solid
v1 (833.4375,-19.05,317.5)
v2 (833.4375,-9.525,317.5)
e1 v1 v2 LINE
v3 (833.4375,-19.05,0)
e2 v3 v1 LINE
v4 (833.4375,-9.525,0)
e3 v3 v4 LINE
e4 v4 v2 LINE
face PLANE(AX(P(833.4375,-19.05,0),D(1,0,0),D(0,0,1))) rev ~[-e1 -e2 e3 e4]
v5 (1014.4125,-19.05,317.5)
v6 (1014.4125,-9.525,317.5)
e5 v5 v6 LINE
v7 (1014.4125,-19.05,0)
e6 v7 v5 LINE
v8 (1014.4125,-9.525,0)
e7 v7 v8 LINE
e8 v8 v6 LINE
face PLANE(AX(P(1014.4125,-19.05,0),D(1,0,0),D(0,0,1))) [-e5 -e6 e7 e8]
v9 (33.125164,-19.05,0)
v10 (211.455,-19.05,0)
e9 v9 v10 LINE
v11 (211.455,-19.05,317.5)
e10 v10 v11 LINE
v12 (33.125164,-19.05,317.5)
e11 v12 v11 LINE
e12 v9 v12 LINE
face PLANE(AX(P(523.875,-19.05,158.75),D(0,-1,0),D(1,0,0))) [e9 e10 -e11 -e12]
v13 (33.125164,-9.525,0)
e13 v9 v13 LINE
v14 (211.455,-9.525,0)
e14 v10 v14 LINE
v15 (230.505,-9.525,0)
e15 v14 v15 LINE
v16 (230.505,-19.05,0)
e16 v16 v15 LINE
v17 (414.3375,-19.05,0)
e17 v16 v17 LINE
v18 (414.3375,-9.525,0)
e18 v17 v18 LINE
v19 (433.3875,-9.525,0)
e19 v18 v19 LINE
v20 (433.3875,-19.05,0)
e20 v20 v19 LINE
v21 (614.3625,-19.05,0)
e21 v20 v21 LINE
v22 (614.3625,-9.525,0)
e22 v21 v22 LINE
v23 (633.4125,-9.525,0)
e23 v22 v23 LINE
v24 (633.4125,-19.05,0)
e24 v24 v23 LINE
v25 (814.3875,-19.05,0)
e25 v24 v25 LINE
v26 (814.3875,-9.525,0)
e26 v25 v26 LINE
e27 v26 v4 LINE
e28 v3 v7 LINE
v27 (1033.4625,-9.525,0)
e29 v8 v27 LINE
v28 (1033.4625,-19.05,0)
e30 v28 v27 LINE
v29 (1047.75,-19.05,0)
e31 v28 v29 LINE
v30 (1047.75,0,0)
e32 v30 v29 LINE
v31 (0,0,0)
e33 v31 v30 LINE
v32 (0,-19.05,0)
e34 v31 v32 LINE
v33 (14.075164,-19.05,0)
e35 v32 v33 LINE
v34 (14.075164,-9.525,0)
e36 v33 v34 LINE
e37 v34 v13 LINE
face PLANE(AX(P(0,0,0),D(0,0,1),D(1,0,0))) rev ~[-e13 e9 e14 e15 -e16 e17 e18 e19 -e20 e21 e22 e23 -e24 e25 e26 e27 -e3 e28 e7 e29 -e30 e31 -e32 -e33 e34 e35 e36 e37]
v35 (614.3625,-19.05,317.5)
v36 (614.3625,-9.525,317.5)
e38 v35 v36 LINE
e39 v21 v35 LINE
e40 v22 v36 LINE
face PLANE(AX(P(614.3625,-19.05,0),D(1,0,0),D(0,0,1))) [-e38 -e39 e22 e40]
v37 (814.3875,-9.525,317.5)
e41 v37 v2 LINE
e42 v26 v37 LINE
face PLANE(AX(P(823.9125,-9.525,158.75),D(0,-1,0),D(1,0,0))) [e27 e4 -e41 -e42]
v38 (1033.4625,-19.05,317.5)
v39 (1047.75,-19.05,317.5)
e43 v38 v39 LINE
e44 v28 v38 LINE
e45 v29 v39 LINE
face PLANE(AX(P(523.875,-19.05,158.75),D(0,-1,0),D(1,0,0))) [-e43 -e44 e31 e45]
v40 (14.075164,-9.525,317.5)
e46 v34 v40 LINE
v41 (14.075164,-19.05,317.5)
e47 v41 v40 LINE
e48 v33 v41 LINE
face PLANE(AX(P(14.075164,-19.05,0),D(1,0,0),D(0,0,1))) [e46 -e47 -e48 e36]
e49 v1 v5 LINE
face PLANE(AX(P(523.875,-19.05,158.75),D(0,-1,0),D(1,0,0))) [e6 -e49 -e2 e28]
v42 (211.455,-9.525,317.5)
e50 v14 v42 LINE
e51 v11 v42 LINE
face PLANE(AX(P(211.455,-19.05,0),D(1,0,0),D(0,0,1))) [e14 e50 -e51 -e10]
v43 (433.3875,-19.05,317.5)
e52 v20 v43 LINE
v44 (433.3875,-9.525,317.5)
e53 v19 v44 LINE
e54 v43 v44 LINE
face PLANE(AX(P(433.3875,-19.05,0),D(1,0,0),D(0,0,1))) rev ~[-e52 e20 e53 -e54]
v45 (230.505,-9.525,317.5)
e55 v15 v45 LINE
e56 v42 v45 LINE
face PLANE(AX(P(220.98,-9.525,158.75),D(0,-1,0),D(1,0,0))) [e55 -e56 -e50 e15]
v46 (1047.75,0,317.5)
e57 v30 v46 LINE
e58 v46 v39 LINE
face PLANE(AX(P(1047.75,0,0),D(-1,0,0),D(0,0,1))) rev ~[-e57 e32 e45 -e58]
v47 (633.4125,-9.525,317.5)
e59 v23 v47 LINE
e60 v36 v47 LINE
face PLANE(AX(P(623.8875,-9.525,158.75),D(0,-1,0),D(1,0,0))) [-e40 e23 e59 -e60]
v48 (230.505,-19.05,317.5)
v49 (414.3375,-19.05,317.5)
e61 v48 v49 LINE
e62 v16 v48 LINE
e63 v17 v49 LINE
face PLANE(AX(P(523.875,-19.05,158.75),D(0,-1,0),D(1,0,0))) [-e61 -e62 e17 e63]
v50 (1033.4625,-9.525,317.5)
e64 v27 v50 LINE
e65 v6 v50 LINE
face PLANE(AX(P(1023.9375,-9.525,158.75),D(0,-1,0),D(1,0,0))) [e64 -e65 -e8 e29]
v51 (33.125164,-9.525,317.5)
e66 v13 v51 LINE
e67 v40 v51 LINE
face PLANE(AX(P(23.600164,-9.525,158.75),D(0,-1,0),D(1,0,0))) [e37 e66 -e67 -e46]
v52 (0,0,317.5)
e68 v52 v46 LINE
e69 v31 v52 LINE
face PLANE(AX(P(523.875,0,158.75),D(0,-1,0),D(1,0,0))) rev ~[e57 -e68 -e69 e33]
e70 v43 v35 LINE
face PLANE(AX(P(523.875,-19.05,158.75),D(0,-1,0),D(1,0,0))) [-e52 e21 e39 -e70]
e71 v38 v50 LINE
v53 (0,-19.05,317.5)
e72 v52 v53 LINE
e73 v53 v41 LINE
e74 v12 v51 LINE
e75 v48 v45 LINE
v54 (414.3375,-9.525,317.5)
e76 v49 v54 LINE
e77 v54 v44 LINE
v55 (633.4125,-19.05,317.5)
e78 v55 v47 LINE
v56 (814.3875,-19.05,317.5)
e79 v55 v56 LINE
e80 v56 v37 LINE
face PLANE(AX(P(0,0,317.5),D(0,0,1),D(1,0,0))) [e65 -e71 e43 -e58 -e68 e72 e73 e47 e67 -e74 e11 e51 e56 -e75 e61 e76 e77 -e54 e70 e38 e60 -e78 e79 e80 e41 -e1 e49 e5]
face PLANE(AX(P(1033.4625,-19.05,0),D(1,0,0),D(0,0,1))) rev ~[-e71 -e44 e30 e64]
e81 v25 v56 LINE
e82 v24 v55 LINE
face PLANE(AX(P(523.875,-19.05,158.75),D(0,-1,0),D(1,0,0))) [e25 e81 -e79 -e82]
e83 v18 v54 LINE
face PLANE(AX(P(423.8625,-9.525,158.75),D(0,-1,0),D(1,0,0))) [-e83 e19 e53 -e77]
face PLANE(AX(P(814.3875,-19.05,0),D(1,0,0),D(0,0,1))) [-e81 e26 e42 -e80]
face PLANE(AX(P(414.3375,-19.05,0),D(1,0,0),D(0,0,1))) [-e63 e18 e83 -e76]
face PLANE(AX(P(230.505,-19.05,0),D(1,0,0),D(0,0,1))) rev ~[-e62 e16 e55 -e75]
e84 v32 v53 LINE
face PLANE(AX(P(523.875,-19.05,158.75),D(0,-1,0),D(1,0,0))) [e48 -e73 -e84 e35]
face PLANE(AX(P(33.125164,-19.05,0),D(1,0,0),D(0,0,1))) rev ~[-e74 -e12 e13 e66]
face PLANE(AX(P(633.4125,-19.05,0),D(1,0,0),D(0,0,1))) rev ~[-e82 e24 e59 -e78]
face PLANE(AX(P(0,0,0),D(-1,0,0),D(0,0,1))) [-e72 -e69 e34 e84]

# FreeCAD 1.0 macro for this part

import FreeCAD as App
import Part
import Sketcher
from FreeCAD import Vector
Q = App.Units.Quantity


def add_polygon(sketch, points):
    """Adds a closed chain of lines whose ends are joined by coincident constraints."""
    first, n = sketch.GeometryCount, len(points)
    for a, b in zip(points, points[1:] + points[:1]):
        sketch.addGeometry(Part.LineSegment(App.Vector(*a, 0), App.Vector(*b, 0)), False)
    for i in range(n):
        sketch.addConstraint(Sketcher.Constraint("Coincident", first + i, 2, first + (i + 1) % n, 1))

doc = App.newDocument("Part")
body = doc.addObject("PartDesign::Body", "Body")

# Sketch on XZ plane
sketch1 = body.newObject("Sketcher::SketchObject", "Sketch")
sketch1.AttachmentSupport = (doc.getObject("XZ_Plane"), [""])
sketch1.MapMode = "FlatFace"
add_polygon(sketch1, [(0, 318), (0, 0), (1048, 0), (1048, 318)])  # lines 0-3
sketch1.addConstraint([
    Sketcher.Constraint("Vertical", 0),
    Sketcher.Constraint("Horizontal", 1),
    Sketcher.Constraint("Vertical", 2),
    Sketcher.Constraint("Horizontal", 3),
    Sketcher.Constraint("Coincident", 0, 2, -1, 1),
    Sketcher.Constraint("DistanceY", 0, 2, 0, 1, Q("12.5 in")),
    Sketcher.Constraint("DistanceX", 1, 1, 1, 2, Q("41.25 in")),
])
pad1 = body.newObject("PartDesign::Pad", "Pad")
pad1.Profile = sketch1
pad1.Length = Q("0.75 in")

# Sketch on XZ plane
sketch2 = body.newObject("Sketcher::SketchObject", "Sketch001")
sketch2.AttachmentSupport = (doc.getObject("XZ_Plane"), [""])
sketch2.MapMode = "FlatFace"
sketch2.AttachmentOffset = App.Placement(Vector(0, 0, 0.75 * 25.4), App.Rotation())
add_polygon(sketch2, [(14, 318), (14, 0), (33, 0), (33, 318)])  # lines 0-3
sketch2.addConstraint([
    Sketcher.Constraint("Vertical", 0),
    Sketcher.Constraint("Horizontal", 1),
    Sketcher.Constraint("Vertical", 2),
    Sketcher.Constraint("Horizontal", 3),
    Sketcher.Constraint("PointOnObject", 0, 2, -1),
    Sketcher.Constraint("DistanceY", 0, 2, 0, 1, Q("12.5 in")),
    Sketcher.Constraint("DistanceX", 1, 1, 1, 2, Q("0.75 in")),
    Sketcher.Constraint("DistanceX", -1, 1, 0, 2, Q("14.075164 mm")),
])
pocket1 = body.newObject("PartDesign::Pocket", "Pocket")
pocket1.Profile = sketch2
pocket1.Length = Q("0.375 in")

# Sketch on XZ plane
sketch3 = body.newObject("Sketcher::SketchObject", "Sketch002")
sketch3.AttachmentSupport = (doc.getObject("XZ_Plane"), [""])
sketch3.MapMode = "FlatFace"
sketch3.AttachmentOffset = App.Placement(Vector(0, 0, 0.75 * 25.4), App.Rotation())
add_polygon(sketch3, [(1014, 318), (1014, 0), (1033, 0), (1033, 318)])  # lines 0-3
sketch3.addConstraint([
    Sketcher.Constraint("Vertical", 0),
    Sketcher.Constraint("Horizontal", 1),
    Sketcher.Constraint("Vertical", 2),
    Sketcher.Constraint("Horizontal", 3),
    Sketcher.Constraint("PointOnObject", 0, 2, -1),
    Sketcher.Constraint("DistanceY", 0, 2, 0, 1, Q("12.5 in")),
    Sketcher.Constraint("DistanceX", 1, 1, 1, 2, Q("0.75 in")),
    Sketcher.Constraint("DistanceX", -1, 1, 0, 2, Q("39.9375 in")),
])
pocket2 = body.newObject("PartDesign::Pocket", "Pocket001")
pocket2.Profile = sketch3
pocket2.Length = Q("0.375 in")

# Sketch on XZ plane
sketch4 = body.newObject("Sketcher::SketchObject", "Sketch003")
sketch4.AttachmentSupport = (doc.getObject("XZ_Plane"), [""])
sketch4.MapMode = "FlatFace"
sketch4.AttachmentOffset = App.Placement(Vector(0, 0, 0.75 * 25.4), App.Rotation())
add_polygon(sketch4, [(814, 318), (814, 0), (833, 0), (833, 318)])  # lines 0-3
sketch4.addConstraint([
    Sketcher.Constraint("Vertical", 0),
    Sketcher.Constraint("Horizontal", 1),
    Sketcher.Constraint("Vertical", 2),
    Sketcher.Constraint("Horizontal", 3),
    Sketcher.Constraint("PointOnObject", 0, 2, -1),
    Sketcher.Constraint("DistanceY", 0, 2, 0, 1, Q("12.5 in")),
    Sketcher.Constraint("DistanceX", 1, 1, 1, 2, Q("0.75 in")),
    Sketcher.Constraint("DistanceX", -1, 1, 0, 2, Q("32.0625 in")),
])
pocket3 = body.newObject("PartDesign::Pocket", "Pocket002")
pocket3.Profile = sketch4
pocket3.Length = Q("0.375 in")

# Sketch on XZ plane
sketch5 = body.newObject("Sketcher::SketchObject", "Sketch004")
sketch5.AttachmentSupport = (doc.getObject("XZ_Plane"), [""])
sketch5.MapMode = "FlatFace"
sketch5.AttachmentOffset = App.Placement(Vector(0, 0, 0.75 * 25.4), App.Rotation())
add_polygon(sketch5, [(211, 318), (211, 0), (231, 0), (231, 318)])  # lines 0-3
sketch5.addConstraint([
    Sketcher.Constraint("Vertical", 0),
    Sketcher.Constraint("Horizontal", 1),
    Sketcher.Constraint("Vertical", 2),
    Sketcher.Constraint("Horizontal", 3),
    Sketcher.Constraint("PointOnObject", 0, 2, -1),
    Sketcher.Constraint("DistanceY", 0, 2, 0, 1, Q("12.5 in")),
    Sketcher.Constraint("DistanceX", 1, 1, 1, 2, Q("0.75 in")),
    Sketcher.Constraint("DistanceX", -1, 1, 0, 2, Q("8.325 in")),
])
pocket4 = body.newObject("PartDesign::Pocket", "Pocket003")
pocket4.Profile = sketch5
pocket4.Length = Q("0.375 in")

# Sketch on XZ plane
sketch6 = body.newObject("Sketcher::SketchObject", "Sketch005")
sketch6.AttachmentSupport = (doc.getObject("XZ_Plane"), [""])
sketch6.MapMode = "FlatFace"
sketch6.AttachmentOffset = App.Placement(Vector(0, 0, 0.75 * 25.4), App.Rotation())
add_polygon(sketch6, [(414, 318), (414, 0), (433, 0), (433, 318)])  # lines 0-3
sketch6.addConstraint([
    Sketcher.Constraint("Vertical", 0),
    Sketcher.Constraint("Horizontal", 1),
    Sketcher.Constraint("Vertical", 2),
    Sketcher.Constraint("Horizontal", 3),
    Sketcher.Constraint("PointOnObject", 0, 2, -1),
    Sketcher.Constraint("DistanceY", 0, 2, 0, 1, Q("12.5 in")),
    Sketcher.Constraint("DistanceX", 1, 1, 1, 2, Q("0.75 in")),
    Sketcher.Constraint("DistanceX", -1, 1, 0, 2, Q("16.3125 in")),
])
pocket5 = body.newObject("PartDesign::Pocket", "Pocket004")
pocket5.Profile = sketch6
pocket5.Length = Q("0.375 in")

# Sketch on XZ plane
sketch7 = body.newObject("Sketcher::SketchObject", "Sketch006")
sketch7.AttachmentSupport = (doc.getObject("XZ_Plane"), [""])
sketch7.MapMode = "FlatFace"
sketch7.AttachmentOffset = App.Placement(Vector(0, 0, 0.75 * 25.4), App.Rotation())
add_polygon(sketch7, [(614, 318), (614, 0), (633, 0), (633, 318)])  # lines 0-3
sketch7.addConstraint([
    Sketcher.Constraint("Vertical", 0),
    Sketcher.Constraint("Horizontal", 1),
    Sketcher.Constraint("Vertical", 2),
    Sketcher.Constraint("Horizontal", 3),
    Sketcher.Constraint("PointOnObject", 0, 2, -1),
    Sketcher.Constraint("DistanceY", 0, 2, 0, 1, Q("12.5 in")),
    Sketcher.Constraint("DistanceX", 1, 1, 1, 2, Q("0.75 in")),
    Sketcher.Constraint("DistanceX", -1, 1, 0, 2, Q("24.1875 in")),
])
pocket6 = body.newObject("PartDesign::Pocket", "Pocket005")
pocket6.Profile = sketch7
pocket6.Length = Q("0.375 in")

doc.recompute()
